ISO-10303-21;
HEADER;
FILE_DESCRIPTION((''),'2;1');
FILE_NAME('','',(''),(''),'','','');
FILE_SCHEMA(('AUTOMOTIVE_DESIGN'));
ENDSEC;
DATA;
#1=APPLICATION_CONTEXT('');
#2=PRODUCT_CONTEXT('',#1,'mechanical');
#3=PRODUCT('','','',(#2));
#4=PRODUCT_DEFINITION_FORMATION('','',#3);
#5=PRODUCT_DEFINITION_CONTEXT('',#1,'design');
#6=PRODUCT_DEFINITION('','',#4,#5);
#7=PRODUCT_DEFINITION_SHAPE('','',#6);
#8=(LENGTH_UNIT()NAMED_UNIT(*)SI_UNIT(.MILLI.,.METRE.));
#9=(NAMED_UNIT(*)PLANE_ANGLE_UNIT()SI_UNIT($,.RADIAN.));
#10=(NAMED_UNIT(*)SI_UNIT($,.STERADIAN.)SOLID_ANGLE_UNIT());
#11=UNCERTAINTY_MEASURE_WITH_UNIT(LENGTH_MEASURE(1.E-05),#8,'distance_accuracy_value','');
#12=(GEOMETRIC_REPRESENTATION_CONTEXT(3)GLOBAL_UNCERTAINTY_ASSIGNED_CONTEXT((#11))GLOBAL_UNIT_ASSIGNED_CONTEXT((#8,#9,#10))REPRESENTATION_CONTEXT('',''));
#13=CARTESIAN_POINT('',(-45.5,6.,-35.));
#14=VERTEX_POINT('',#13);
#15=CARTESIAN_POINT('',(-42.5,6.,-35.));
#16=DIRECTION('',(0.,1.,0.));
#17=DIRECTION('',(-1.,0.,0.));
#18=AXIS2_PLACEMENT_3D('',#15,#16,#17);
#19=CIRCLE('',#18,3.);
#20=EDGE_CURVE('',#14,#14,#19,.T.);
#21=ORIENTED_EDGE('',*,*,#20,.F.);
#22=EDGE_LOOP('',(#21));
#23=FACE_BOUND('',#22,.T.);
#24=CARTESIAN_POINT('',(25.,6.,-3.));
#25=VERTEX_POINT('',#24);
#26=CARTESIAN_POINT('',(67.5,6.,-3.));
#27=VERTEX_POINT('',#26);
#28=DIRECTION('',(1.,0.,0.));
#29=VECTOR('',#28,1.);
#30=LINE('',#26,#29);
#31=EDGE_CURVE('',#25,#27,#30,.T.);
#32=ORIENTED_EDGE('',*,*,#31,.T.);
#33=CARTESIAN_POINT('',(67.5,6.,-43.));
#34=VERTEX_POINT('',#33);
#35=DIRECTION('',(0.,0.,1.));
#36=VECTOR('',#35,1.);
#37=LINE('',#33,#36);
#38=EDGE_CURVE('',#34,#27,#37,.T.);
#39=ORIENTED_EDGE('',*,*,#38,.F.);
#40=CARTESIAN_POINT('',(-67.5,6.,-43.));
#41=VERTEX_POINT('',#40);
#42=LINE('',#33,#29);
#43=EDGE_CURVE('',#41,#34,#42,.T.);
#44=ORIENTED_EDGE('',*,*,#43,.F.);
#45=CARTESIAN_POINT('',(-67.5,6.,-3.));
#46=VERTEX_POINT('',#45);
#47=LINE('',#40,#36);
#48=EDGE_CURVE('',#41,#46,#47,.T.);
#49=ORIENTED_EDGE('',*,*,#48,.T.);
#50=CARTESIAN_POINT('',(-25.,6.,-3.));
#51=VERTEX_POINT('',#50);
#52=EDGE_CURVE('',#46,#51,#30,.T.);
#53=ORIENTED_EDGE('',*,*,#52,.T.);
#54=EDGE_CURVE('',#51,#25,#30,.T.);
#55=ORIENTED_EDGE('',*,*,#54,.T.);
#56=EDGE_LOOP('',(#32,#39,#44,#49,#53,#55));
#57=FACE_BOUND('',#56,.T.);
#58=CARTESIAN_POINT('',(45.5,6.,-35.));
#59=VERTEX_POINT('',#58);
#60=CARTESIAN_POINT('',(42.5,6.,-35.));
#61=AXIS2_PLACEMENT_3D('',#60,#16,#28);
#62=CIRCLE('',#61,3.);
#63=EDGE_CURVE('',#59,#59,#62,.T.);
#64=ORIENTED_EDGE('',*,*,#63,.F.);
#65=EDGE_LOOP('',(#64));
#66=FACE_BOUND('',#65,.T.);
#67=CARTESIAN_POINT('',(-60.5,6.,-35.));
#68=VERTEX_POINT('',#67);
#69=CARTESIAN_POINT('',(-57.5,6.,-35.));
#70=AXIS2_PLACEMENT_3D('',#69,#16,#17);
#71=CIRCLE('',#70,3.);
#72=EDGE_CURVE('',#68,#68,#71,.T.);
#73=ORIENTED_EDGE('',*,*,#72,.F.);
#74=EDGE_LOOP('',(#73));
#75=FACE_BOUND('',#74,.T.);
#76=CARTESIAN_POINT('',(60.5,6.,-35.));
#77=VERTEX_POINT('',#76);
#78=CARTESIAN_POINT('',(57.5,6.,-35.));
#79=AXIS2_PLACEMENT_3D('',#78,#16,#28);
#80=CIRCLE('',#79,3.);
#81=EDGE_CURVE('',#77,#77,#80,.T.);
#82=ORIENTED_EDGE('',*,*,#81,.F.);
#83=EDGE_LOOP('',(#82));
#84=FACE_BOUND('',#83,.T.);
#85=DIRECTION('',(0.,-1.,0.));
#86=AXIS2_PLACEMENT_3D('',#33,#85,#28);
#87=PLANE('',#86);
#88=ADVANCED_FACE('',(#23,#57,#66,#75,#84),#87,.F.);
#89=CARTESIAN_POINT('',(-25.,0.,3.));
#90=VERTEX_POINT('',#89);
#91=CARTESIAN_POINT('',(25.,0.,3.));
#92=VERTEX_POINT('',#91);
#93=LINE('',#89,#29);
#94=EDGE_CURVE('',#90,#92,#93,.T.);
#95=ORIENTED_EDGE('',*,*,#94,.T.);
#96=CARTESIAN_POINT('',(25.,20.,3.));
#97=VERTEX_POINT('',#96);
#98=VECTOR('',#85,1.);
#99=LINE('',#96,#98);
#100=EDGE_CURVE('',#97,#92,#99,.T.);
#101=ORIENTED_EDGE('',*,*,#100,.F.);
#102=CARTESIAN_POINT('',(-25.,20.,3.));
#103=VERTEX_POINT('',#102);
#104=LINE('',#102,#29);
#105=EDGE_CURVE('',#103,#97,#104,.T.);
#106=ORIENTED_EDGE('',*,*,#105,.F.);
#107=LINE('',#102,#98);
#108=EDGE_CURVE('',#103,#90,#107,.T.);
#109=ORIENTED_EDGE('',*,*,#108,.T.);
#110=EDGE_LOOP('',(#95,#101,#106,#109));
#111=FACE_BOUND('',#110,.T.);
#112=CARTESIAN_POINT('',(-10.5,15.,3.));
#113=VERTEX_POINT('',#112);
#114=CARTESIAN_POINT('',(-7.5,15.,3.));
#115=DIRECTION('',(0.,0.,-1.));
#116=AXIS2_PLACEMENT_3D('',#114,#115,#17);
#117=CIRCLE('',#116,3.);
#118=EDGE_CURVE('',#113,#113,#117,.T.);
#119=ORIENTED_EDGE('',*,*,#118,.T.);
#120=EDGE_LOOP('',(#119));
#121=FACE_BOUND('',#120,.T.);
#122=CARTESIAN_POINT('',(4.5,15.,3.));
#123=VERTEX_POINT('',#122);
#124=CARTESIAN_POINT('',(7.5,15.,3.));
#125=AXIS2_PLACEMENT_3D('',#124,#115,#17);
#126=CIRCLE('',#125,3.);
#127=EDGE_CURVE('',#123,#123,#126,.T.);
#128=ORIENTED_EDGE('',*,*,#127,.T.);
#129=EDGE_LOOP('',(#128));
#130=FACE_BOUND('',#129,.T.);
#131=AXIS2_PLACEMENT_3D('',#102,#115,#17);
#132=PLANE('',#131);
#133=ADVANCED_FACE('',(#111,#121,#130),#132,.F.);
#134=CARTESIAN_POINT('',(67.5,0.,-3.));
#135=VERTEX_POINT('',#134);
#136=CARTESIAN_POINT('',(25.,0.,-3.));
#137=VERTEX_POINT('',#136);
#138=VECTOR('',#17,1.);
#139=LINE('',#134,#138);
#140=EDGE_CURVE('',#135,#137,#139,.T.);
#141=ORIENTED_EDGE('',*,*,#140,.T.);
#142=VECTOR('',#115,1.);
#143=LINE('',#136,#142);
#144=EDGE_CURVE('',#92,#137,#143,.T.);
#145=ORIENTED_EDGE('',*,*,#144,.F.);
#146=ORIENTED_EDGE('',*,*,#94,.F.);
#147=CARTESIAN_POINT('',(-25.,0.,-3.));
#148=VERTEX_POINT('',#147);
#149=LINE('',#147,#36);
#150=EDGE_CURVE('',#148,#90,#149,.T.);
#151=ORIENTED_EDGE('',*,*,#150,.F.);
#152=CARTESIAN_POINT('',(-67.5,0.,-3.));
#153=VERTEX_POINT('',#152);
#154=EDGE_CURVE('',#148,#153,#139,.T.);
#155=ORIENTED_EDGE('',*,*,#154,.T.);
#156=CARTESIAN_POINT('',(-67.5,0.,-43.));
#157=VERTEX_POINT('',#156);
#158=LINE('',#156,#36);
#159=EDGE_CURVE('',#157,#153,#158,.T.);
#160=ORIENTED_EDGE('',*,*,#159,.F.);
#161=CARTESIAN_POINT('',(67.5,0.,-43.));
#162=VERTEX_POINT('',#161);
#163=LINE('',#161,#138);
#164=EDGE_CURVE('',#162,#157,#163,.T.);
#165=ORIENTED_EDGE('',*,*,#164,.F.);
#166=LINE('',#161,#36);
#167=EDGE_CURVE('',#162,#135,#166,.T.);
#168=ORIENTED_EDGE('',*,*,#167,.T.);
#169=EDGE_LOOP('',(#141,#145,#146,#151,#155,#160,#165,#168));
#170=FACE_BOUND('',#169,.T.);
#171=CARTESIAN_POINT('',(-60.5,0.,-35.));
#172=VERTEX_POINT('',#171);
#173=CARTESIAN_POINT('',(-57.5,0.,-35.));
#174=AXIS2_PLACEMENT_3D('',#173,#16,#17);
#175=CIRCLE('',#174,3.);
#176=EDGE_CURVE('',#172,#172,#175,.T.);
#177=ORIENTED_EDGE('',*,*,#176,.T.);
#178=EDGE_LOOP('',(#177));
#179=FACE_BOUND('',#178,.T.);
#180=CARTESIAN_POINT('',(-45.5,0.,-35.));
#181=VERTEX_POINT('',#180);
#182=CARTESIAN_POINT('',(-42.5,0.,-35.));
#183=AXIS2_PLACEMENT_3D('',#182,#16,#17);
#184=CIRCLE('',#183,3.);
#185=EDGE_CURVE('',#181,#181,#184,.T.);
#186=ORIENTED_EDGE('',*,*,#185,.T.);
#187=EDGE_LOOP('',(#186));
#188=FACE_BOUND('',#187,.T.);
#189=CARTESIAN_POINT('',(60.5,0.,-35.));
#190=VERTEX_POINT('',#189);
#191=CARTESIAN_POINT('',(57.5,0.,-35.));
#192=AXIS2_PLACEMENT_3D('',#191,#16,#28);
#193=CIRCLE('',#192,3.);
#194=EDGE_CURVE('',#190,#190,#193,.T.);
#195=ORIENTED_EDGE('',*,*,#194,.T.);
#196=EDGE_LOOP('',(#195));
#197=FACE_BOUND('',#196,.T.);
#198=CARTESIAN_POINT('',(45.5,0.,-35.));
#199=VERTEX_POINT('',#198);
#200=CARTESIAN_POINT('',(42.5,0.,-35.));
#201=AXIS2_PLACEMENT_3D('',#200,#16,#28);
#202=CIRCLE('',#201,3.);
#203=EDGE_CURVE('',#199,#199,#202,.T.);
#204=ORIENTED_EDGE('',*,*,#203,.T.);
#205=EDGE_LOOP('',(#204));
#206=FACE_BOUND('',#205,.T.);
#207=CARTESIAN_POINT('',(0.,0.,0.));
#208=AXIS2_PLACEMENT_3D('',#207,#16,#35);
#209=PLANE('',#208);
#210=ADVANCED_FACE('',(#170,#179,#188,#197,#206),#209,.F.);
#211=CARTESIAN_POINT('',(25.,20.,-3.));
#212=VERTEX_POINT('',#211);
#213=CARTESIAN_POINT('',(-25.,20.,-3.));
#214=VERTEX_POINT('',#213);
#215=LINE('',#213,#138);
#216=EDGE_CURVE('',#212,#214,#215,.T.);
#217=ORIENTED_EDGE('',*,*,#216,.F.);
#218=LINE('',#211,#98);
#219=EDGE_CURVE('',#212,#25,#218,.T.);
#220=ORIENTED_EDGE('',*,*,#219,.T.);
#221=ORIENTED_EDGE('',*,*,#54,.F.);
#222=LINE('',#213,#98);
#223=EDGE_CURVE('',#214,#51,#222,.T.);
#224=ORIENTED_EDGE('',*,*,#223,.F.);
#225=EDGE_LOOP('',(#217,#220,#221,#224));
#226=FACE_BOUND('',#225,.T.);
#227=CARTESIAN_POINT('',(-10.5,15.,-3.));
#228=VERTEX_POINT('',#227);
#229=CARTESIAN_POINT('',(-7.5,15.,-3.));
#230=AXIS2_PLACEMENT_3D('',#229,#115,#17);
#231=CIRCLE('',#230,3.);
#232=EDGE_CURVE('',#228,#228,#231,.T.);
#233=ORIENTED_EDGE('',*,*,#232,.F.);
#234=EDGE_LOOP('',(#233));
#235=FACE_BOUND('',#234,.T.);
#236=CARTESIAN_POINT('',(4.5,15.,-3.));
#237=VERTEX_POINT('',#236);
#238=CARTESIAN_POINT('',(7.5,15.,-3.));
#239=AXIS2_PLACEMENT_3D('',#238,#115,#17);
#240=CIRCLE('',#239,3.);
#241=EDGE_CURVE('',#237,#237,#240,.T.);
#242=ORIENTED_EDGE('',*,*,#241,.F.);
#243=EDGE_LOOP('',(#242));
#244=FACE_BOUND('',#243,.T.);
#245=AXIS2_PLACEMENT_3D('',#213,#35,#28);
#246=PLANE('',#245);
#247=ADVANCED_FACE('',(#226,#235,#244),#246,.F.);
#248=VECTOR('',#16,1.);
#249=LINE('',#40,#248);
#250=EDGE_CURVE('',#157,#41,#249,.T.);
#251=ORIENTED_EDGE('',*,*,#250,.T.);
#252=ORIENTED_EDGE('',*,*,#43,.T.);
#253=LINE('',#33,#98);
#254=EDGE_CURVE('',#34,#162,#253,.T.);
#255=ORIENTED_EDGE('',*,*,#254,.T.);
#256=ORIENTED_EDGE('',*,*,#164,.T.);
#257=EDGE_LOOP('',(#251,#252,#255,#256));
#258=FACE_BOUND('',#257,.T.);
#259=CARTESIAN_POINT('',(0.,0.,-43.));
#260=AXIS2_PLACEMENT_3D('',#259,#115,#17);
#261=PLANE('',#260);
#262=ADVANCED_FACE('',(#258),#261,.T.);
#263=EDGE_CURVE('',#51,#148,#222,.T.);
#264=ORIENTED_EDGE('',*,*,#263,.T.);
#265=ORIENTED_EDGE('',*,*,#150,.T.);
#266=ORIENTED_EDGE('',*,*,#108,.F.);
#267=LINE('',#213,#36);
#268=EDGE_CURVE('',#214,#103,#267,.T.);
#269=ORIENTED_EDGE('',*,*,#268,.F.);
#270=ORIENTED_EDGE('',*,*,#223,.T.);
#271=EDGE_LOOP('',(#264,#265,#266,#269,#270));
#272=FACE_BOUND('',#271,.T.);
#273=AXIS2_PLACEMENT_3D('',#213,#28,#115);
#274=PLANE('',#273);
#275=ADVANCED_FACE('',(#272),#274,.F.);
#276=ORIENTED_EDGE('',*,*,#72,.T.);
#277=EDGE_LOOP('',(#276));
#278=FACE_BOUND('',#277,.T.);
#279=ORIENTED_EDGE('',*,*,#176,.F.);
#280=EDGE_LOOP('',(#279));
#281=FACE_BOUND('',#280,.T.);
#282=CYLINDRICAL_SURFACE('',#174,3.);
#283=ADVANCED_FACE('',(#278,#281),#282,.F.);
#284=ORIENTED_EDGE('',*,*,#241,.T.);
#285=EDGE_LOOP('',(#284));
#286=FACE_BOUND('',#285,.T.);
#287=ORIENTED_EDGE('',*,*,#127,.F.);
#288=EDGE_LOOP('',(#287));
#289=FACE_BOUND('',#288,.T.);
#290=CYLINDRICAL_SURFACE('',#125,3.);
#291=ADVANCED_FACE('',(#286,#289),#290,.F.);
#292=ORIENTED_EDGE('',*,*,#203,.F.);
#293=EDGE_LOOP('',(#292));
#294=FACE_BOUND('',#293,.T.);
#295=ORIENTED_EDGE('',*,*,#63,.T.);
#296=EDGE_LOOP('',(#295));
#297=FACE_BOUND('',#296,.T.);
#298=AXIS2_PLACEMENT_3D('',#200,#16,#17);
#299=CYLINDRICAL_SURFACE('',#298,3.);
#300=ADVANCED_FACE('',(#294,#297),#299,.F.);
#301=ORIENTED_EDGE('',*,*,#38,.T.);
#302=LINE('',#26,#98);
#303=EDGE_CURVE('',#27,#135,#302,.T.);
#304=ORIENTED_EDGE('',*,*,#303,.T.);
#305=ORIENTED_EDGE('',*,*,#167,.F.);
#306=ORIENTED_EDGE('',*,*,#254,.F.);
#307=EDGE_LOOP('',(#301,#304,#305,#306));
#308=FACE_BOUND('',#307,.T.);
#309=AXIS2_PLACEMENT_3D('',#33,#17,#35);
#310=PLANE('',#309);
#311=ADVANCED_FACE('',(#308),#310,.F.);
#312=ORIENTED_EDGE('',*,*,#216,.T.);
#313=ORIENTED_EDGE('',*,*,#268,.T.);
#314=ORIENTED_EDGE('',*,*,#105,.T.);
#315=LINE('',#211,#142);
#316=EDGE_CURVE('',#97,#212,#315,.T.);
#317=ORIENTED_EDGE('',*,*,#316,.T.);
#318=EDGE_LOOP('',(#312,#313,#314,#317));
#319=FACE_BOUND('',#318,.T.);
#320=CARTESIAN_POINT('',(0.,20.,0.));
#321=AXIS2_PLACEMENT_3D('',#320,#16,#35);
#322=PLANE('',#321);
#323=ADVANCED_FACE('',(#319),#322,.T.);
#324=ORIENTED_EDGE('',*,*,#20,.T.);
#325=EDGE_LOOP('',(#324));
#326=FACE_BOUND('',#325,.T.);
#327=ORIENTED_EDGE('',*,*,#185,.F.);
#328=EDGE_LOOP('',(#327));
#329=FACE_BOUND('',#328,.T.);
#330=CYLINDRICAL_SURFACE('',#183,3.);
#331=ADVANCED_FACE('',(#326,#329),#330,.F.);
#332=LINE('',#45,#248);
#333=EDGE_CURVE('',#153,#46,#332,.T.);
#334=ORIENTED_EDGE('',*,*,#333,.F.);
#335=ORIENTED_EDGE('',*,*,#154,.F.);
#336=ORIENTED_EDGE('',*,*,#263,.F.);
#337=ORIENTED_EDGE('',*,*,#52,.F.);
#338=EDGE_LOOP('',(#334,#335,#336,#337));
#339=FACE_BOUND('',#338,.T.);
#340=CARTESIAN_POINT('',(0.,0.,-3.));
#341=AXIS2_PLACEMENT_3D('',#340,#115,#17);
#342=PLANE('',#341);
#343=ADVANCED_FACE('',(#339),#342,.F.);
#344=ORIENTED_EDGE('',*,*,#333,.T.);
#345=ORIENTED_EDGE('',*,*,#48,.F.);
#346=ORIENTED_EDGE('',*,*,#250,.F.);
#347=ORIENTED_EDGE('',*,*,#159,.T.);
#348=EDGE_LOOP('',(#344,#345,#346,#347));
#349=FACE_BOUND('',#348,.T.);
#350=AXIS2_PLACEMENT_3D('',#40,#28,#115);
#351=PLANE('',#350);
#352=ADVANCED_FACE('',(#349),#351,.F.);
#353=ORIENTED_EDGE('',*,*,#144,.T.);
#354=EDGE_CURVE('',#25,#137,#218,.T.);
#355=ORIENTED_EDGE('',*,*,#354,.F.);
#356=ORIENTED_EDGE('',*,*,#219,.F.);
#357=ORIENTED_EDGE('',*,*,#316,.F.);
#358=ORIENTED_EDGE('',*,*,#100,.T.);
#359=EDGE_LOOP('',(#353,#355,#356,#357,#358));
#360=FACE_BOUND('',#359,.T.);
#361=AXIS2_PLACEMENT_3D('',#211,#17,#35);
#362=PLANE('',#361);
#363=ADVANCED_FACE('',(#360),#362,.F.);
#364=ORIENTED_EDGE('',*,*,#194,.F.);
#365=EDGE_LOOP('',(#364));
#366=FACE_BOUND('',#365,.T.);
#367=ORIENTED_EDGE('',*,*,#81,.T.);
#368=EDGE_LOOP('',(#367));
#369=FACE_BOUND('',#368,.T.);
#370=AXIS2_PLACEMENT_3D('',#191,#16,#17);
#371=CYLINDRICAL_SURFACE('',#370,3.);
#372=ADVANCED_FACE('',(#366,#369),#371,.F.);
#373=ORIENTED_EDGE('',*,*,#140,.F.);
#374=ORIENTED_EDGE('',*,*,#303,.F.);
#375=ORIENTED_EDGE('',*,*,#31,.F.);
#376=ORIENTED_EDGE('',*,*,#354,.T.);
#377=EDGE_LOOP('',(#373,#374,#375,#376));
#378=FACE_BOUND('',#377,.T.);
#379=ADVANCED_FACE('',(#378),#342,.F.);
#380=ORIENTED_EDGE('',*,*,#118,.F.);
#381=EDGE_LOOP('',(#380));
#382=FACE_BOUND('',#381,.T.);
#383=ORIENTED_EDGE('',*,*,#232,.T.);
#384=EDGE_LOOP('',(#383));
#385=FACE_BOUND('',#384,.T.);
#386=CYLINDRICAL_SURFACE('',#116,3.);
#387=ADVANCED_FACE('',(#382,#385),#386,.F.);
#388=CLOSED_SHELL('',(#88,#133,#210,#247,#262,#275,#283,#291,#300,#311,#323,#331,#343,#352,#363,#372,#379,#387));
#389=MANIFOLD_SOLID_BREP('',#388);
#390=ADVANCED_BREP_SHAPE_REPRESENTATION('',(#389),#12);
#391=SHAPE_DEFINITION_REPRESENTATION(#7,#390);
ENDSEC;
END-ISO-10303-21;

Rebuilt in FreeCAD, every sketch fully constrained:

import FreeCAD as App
import Part
import Sketcher
Q = App.Units.Quantity

doc = App.newDocument("Part")
params = doc.addObject("Spreadsheet::Sheet", "Params")
for row, (alias, value) in enumerate([
    ("sketch1_width", "50 mm"),
    ("sketch1_height", "6 mm"),
    ("pad1_length", "20 mm"),
    ("sketch2_diameter", "6 mm"),
    ("sketch3_width", "135 mm"),
    ("sketch3_height", "6 mm"),
    ("pad2_length", "40 mm"),
    ("sketch4_diameter", "6 mm"),
], start=1):
    params.set(f"A{row}", alias)
    params.set(f"B{row}", "=" + value)
    params.setAlias(f"B{row}", alias)

body = doc.addObject("PartDesign::Body", "Body")

# Sketch on XZ plane
sketch1 = body.newObject("Sketcher::SketchObject", "Sketch")
sketch1.AttachmentSupport = (doc.getObject("XZ_Plane"), [""])
sketch1.MapMode = "FlatFace"
sketch1.addGeometry([
    Part.LineSegment(App.Vector(-25, -3, 0), App.Vector(-25, 3, 0)),
    Part.LineSegment(App.Vector(-25, 3, 0), App.Vector(25, 3, 0)),
    Part.LineSegment(App.Vector(25, 3, 0), App.Vector(25, -3, 0)),
    Part.LineSegment(App.Vector(25, -3, 0), App.Vector(-25, -3, 0)),
], False)
sketch1.addConstraint([
    Sketcher.Constraint("Coincident", 0, 2, 1, 1),
    Sketcher.Constraint("Coincident", 1, 2, 2, 1),
    Sketcher.Constraint("Coincident", 2, 2, 3, 1),
    Sketcher.Constraint("Coincident", 3, 2, 0, 1),
    Sketcher.Constraint("Vertical", 0),
    Sketcher.Constraint("Horizontal", 1),
    Sketcher.Constraint("Vertical", 2),
    Sketcher.Constraint("Horizontal", 3),
    Sketcher.Constraint("Symmetric", 0, 2, 2, 2, -1, 1),
    Sketcher.Constraint("DistanceX", 1, 1, 1, 2, Q("50 mm")),
    Sketcher.Constraint("DistanceY", 0, 1, 0, 2, Q("6 mm")),
])
sketch1.setExpression("Constraints[9]", "Params.sketch1_width")
sketch1.setExpression("Constraints[10]", "Params.sketch1_height")
pad1 = body.newObject("PartDesign::Pad", "Pad")
pad1.Profile = sketch1
pad1.setExpression("Length", "Params.pad1_length")
pad1.Reversed = True

# Sketch on XY plane
sketch2 = body.newObject("Sketcher::SketchObject", "Sketch001")
sketch2.AttachmentSupport = (doc.getObject("XY_Plane"), [""])
sketch2.MapMode = "FlatFace"
sketch2.AttachmentOffset = App.Placement(App.Vector(0, 0, -3), App.Rotation())
sketch2.addGeometry([
    Part.Circle(App.Vector(7.5, 15, 0), App.Vector(0, 0, 1), 3),
    Part.Circle(App.Vector(-7.5, 15, 0), App.Vector(0, 0, 1), 3),
], False)
sketch2.addConstraint([
    Sketcher.Constraint("Equal", 0, 1),
    Sketcher.Constraint("Symmetric", 0, 3, 1, 3, -2),
    Sketcher.Constraint("Diameter", 0, Q("6 mm")),
    Sketcher.Constraint("DistanceY", -1, 1, 0, 3, Q("15 mm")),
    Sketcher.Constraint("DistanceX", 1, 3, 0, 3, Q("15 mm")),
])
sketch2.setExpression("Constraints[2]", "Params.sketch2_diameter")
pocket1 = body.newObject("PartDesign::Pocket", "Pocket")
pocket1.Profile = sketch2
pocket1.Type = "ThroughAll"
pocket1.Reversed = True

# Sketch on XY plane
sketch3 = body.newObject("Sketcher::SketchObject", "Sketch002")
sketch3.AttachmentSupport = (doc.getObject("XY_Plane"), [""])
sketch3.MapMode = "FlatFace"
sketch3.AttachmentOffset = App.Placement(App.Vector(0, 0, -3), App.Rotation())
sketch3.addGeometry([
    Part.LineSegment(App.Vector(68, 6, 0), App.Vector(68, 0, 0)),
    Part.LineSegment(App.Vector(68, 0, 0), App.Vector(-68, 0, 0)),
    Part.LineSegment(App.Vector(-68, 0, 0), App.Vector(-68, 6, 0)),
    Part.LineSegment(App.Vector(-68, 6, 0), App.Vector(68, 6, 0)),
], False)
sketch3.addConstraint([
    Sketcher.Constraint("Coincident", 0, 2, 1, 1),
    Sketcher.Constraint("Coincident", 1, 2, 2, 1),
    Sketcher.Constraint("Coincident", 2, 2, 3, 1),
    Sketcher.Constraint("Coincident", 3, 2, 0, 1),
    Sketcher.Constraint("Vertical", 0),
    Sketcher.Constraint("Horizontal", 1),
    Sketcher.Constraint("Vertical", 2),
    Sketcher.Constraint("Horizontal", 3),
    Sketcher.Constraint("Symmetric", 0, 2, 1, 2, -1, 1),
    Sketcher.Constraint("DistanceX", 1, 2, 1, 1, Q("135 mm")),
    Sketcher.Constraint("DistanceY", 0, 2, 0, 1, Q("6 mm")),
])
sketch3.setExpression("Constraints[9]", "Params.sketch3_width")
sketch3.setExpression("Constraints[10]", "Params.sketch3_height")
pad2 = body.newObject("PartDesign::Pad", "Pad001")
pad2.Profile = sketch3
pad2.setExpression("Length", "Params.pad2_length")
pad2.Reversed = True

# Sketch on XZ plane
sketch4 = body.newObject("Sketcher::SketchObject", "Sketch003")
sketch4.AttachmentSupport = (doc.getObject("XZ_Plane"), [""])
sketch4.MapMode = "FlatFace"
sketch4.AttachmentOffset = App.Placement(App.Vector(0, 0, -6), App.Rotation())
sketch4.addGeometry([
    Part.Circle(App.Vector(-57.5, -35, 0), App.Vector(0, 0, 1), 3),
    Part.Circle(App.Vector(-42.5, -35, 0), App.Vector(0, 0, 1), 3),
    Part.Circle(App.Vector(42.5, -35, 0), App.Vector(0, 0, 1), 3),
    Part.Circle(App.Vector(57.5, -35, 0), App.Vector(0, 0, 1), 3),
], False)
sketch4.addConstraint([
    Sketcher.Constraint("Equal", 0, 1),
    Sketcher.Constraint("Equal", 1, 2),
    Sketcher.Constraint("Equal", 2, 3),
    Sketcher.Constraint("Symmetric", 1, 3, 2, 3, -2),
    Sketcher.Constraint("Symmetric", 0, 3, 3, 3, -2),
    Sketcher.Constraint("Horizontal", 0, 3, 1, 3),
    Sketcher.Constraint("Diameter", 0, Q("6 mm")),
    Sketcher.Constraint("DistanceY", 0, 3, -1, 1, Q("35 mm")),
    Sketcher.Constraint("DistanceX", 0, 3, 1, 3, Q("15 mm")),
    Sketcher.Constraint("DistanceX", 1, 3, 2, 3, Q("85 mm")),
])
sketch4.setExpression("Constraints[6]", "Params.sketch4_diameter")
pocket2 = body.newObject("PartDesign::Pocket", "Pocket001")
pocket2.Profile = sketch4
pocket2.Type = "ThroughAll"
pocket2.Reversed = True

doc.recompute()
